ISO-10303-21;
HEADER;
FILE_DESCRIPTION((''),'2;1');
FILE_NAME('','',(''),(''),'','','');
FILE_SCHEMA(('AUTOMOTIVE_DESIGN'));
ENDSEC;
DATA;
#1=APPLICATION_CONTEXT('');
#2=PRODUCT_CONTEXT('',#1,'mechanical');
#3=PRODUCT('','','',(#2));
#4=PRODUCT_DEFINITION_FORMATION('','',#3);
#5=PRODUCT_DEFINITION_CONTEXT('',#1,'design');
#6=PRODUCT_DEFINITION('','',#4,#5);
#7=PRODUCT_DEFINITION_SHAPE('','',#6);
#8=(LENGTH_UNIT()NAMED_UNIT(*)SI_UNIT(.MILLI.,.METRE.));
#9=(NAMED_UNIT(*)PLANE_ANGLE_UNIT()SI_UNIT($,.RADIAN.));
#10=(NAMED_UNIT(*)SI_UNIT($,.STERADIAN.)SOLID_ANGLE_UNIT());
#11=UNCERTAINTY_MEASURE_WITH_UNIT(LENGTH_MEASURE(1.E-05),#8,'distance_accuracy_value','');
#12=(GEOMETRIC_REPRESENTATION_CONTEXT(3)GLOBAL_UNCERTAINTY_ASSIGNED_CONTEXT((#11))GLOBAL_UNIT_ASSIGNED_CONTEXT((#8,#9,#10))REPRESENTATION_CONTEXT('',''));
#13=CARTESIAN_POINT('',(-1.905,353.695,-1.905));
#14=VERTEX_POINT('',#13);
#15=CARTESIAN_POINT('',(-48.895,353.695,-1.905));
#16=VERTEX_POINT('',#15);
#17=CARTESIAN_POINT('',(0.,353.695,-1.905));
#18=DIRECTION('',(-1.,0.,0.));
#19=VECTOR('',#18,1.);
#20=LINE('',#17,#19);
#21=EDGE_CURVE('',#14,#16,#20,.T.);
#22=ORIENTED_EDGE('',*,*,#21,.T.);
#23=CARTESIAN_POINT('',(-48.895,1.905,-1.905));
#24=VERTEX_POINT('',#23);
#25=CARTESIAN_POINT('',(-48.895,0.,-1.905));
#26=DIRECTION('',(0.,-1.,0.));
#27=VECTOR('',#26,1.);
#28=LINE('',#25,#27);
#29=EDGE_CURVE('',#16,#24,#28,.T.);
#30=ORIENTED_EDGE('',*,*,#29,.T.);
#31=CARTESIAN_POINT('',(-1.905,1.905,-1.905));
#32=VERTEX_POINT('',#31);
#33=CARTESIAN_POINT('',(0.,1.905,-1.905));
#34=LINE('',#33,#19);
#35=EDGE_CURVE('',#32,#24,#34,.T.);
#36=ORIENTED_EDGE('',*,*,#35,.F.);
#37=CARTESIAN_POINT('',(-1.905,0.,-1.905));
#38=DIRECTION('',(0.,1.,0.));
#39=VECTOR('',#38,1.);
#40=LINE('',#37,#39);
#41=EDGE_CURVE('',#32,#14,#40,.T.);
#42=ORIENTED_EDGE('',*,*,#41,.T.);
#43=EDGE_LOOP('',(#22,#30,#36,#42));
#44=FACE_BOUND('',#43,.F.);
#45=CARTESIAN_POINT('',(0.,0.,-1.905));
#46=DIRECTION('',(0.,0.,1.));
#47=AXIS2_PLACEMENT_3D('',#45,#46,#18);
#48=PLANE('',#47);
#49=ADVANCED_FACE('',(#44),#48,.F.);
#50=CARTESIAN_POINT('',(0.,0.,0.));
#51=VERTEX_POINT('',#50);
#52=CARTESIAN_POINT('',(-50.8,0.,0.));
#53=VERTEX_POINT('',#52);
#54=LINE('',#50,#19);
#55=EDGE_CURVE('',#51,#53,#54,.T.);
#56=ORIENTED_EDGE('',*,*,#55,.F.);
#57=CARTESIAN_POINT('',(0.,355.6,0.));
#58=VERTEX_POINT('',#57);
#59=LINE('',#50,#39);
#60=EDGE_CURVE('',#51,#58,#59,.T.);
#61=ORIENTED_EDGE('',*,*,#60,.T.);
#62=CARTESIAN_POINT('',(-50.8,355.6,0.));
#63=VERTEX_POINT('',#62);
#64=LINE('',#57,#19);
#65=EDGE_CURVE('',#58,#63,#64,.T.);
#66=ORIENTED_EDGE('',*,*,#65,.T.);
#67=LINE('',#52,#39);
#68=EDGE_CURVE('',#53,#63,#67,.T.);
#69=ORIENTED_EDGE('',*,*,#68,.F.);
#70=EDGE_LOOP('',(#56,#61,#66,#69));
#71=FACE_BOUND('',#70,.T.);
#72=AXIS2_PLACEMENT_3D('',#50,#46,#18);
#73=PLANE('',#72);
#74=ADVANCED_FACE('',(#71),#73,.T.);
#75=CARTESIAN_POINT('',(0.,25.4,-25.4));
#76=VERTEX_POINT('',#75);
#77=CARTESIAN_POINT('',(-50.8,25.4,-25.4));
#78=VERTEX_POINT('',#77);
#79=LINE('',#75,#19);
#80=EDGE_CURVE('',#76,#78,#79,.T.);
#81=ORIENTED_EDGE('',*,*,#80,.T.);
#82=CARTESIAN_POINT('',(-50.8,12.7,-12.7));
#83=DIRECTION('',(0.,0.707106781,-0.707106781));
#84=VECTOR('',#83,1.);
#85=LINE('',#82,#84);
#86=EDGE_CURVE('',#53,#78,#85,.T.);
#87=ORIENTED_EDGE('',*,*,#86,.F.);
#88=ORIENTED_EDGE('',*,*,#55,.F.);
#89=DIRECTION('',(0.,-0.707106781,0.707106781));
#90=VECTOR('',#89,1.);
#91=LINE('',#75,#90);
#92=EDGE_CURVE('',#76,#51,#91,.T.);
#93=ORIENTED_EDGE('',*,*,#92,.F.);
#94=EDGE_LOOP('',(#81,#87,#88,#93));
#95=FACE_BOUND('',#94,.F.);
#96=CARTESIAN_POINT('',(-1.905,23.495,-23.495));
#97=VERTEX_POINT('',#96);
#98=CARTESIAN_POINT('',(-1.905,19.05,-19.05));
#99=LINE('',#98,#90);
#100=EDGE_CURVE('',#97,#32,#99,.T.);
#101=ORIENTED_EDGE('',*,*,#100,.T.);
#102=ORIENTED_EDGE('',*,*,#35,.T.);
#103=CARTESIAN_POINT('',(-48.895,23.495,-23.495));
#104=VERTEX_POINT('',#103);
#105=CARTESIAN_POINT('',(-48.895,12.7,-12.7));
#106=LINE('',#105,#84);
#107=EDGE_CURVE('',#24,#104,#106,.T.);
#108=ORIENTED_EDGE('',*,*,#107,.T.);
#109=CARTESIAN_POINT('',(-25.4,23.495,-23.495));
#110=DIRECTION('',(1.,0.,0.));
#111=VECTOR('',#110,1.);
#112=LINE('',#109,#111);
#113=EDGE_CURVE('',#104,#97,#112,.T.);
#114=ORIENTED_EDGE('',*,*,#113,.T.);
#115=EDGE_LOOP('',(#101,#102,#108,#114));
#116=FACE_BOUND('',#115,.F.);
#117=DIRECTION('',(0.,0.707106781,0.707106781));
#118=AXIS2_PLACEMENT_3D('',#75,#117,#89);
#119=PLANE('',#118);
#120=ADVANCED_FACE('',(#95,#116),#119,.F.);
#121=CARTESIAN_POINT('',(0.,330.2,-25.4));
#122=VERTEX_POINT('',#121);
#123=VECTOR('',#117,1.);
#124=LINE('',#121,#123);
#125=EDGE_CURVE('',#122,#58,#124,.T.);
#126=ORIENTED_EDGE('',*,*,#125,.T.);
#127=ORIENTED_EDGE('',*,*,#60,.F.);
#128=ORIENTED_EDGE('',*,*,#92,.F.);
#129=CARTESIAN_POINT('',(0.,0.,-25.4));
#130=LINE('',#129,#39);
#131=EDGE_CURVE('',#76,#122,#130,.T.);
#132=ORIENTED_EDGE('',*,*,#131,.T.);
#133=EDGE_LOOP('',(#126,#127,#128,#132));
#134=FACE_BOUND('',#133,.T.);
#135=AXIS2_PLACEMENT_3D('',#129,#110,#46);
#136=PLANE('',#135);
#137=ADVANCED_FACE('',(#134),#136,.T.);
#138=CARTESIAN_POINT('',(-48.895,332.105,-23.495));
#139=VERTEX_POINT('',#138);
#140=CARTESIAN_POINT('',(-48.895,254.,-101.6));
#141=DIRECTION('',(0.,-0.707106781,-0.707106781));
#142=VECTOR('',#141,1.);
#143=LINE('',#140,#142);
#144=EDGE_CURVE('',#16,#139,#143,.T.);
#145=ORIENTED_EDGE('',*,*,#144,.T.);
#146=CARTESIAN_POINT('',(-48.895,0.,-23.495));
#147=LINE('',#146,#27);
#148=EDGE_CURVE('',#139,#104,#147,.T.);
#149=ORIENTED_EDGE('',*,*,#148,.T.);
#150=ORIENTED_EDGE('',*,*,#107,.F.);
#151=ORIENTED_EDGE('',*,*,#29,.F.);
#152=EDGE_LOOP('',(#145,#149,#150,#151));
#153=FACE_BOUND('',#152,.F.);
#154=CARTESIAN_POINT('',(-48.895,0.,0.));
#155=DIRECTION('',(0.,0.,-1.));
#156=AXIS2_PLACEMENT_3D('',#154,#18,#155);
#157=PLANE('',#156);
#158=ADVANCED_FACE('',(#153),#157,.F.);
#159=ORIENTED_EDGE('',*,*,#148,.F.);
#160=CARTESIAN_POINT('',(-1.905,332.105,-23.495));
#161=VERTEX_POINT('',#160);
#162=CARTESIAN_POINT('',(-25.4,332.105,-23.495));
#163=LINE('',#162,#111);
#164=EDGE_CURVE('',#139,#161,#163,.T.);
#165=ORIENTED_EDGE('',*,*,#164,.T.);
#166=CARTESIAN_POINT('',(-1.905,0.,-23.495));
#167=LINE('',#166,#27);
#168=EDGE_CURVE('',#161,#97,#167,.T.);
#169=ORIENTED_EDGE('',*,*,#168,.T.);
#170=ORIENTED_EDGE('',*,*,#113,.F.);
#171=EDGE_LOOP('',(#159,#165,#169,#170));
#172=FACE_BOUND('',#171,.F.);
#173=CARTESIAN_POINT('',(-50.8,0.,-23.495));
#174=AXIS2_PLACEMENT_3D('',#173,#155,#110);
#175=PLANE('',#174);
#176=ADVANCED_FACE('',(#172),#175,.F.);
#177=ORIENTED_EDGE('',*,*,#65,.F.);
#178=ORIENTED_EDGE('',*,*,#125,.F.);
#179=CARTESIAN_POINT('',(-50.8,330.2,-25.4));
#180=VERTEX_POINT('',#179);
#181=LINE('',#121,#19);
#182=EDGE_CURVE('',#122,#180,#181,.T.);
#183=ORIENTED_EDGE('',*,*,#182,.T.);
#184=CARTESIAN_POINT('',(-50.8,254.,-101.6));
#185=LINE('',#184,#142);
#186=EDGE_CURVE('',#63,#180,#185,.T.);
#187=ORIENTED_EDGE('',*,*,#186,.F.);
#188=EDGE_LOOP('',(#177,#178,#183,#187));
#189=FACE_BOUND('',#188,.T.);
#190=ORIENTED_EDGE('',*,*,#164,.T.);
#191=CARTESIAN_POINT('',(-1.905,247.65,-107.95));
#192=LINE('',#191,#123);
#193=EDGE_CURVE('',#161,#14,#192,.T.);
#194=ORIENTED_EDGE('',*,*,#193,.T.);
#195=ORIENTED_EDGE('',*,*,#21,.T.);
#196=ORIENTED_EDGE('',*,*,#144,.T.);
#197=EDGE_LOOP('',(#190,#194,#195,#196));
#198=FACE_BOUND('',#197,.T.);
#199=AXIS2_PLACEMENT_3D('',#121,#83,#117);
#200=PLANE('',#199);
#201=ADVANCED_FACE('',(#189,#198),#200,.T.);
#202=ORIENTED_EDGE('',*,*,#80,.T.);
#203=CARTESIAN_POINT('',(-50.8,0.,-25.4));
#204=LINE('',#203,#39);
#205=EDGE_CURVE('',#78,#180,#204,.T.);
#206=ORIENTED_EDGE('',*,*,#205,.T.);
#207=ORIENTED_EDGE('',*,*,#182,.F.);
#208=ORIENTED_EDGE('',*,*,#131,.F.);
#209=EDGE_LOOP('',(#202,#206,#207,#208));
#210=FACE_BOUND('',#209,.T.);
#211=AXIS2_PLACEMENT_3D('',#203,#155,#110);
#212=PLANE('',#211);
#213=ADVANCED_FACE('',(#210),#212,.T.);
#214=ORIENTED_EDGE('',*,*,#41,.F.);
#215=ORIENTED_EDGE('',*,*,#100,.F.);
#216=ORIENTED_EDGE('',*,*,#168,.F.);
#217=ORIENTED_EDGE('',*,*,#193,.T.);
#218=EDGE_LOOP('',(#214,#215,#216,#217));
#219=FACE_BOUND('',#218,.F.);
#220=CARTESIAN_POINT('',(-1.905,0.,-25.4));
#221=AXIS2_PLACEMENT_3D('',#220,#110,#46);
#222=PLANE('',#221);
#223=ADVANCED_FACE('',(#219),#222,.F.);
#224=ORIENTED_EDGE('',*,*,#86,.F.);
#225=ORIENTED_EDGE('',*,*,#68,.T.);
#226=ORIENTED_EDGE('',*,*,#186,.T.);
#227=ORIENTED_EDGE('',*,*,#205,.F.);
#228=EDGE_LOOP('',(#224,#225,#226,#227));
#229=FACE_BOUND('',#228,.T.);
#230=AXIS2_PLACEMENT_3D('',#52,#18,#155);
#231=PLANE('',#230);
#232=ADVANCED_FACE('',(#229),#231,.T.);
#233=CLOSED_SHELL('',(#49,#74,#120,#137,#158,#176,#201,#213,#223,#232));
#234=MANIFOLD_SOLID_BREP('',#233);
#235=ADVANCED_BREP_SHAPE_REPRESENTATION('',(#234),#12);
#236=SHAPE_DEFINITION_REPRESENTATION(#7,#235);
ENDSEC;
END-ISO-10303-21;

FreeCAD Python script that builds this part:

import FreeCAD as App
import Part
import Sketcher
Q = App.Units.Quantity


def faces_at(feature, points):
    """Names of the faces that lie closest to the given points."""
    faces = feature.Shape.Faces
    near = lambda p: min(range(len(faces)), key=lambda i: faces[i].distToShape(Part.Vertex(*p))[0])
    return sorted({f"Face{near(p) + 1}" for p in points})

doc = App.newDocument("Part")
body = doc.addObject("PartDesign::Body", "Body")

# Sketch on XZ plane
sketch1 = body.newObject("Sketcher::SketchObject", "Sketch")
sketch1.AttachmentSupport = (doc.getObject("XZ_Plane"), [""])
sketch1.MapMode = "FlatFace"
sketch1.addGeometry([
    Part.LineSegment(App.Vector(-51, 0, 0), App.Vector(0, 0, 0)),
    Part.LineSegment(App.Vector(0, 0, 0), App.Vector(0, -25, 0)),
    Part.LineSegment(App.Vector(0, -25, 0), App.Vector(-51, -25, 0)),
    Part.LineSegment(App.Vector(-51, -25, 0), App.Vector(-51, 0, 0)),
], False)
sketch1.addConstraint([
    Sketcher.Constraint("Coincident", 0, 2, 1, 1),
    Sketcher.Constraint("Coincident", 1, 2, 2, 1),
    Sketcher.Constraint("Coincident", 2, 2, 3, 1),
    Sketcher.Constraint("Coincident", 3, 2, 0, 1),
    Sketcher.Constraint("Horizontal", 0),
    Sketcher.Constraint("Vertical", 1),
    Sketcher.Constraint("Horizontal", 2),
    Sketcher.Constraint("Vertical", 3),
    Sketcher.Constraint("Coincident", 0, 2, -1, 1),
    Sketcher.Constraint("DistanceX", 0, 1, 0, 2, Q("2 in")),
    Sketcher.Constraint("DistanceY", 1, 2, 1, 1, Q("1 in")),
])
pad1 = body.newObject("PartDesign::Pad", "Pad")
pad1.Profile = sketch1
pad1.Length = Q("14 in")
pad1.Reversed = True
doc.recompute()

thickness = body.newObject("PartDesign::Thickness", "Thickness")
thickness.Base = (pad1, faces_at(pad1, [(-16.933, 0, -16.933), (-16.933, 355.6, -16.933)]))
thickness.Value = Q("0.075 in")
thickness.Reversed = True
thickness.Join = "Intersection"

# Sketch on YZ plane
sketch2 = body.newObject("Sketcher::SketchObject", "Sketch001")
sketch2.AttachmentSupport = (doc.getObject("YZ_Plane"), [""])
sketch2.MapMode = "FlatFace"
sketch2.addGeometry([
    Part.LineSegment(App.Vector(0, 0, 0), App.Vector(0, -25, 0)),  # 0
    Part.LineSegment(App.Vector(0, -25, 0), App.Vector(25, -25, 0)),  # 1
    Part.LineSegment(App.Vector(25, -25, 0), App.Vector(0, 0, 0)),  # 2
    Part.LineSegment(App.Vector(356, -25, 0), App.Vector(356, 0, 0)),  # 3
    Part.LineSegment(App.Vector(356, 0, 0), App.Vector(330, -25, 0)),  # 4
    Part.LineSegment(App.Vector(330, -25, 0), App.Vector(356, -25, 0)),  # 5
], False)
sketch2.addConstraint([
    Sketcher.Constraint("Coincident", 0, 2, 1, 1),
    Sketcher.Constraint("Coincident", 1, 2, 2, 1),
    Sketcher.Constraint("Coincident", 2, 2, 0, 1),
    Sketcher.Constraint("Coincident", 3, 2, 4, 1),
    Sketcher.Constraint("Coincident", 4, 2, 5, 1),
    Sketcher.Constraint("Coincident", 5, 2, 3, 1),
    Sketcher.Constraint("Vertical", 0),
    Sketcher.Constraint("Horizontal", 1),
    Sketcher.Constraint("Vertical", 3),
    Sketcher.Constraint("Horizontal", 5),
    Sketcher.Constraint("Coincident", 2, 2, -1, 1),
    Sketcher.Constraint("PointOnObject", 3, 2, -1),
    Sketcher.Constraint("Perpendicular", 2, 4),
    Sketcher.Constraint("Horizontal", 1, 2, 4, 2),
    Sketcher.Constraint("Equal", 1, 5),
    Sketcher.Constraint("DistanceX", 1, 1, 1, 2, Q("1 in")),
    Sketcher.Constraint("DistanceX", -1, 1, 3, 2, Q("14 in")),
])
pocket1 = body.newObject("PartDesign::Pocket", "Pocket")
pocket1.Profile = sketch2
pocket1.Length = Q("14 in")

doc.recompute()
